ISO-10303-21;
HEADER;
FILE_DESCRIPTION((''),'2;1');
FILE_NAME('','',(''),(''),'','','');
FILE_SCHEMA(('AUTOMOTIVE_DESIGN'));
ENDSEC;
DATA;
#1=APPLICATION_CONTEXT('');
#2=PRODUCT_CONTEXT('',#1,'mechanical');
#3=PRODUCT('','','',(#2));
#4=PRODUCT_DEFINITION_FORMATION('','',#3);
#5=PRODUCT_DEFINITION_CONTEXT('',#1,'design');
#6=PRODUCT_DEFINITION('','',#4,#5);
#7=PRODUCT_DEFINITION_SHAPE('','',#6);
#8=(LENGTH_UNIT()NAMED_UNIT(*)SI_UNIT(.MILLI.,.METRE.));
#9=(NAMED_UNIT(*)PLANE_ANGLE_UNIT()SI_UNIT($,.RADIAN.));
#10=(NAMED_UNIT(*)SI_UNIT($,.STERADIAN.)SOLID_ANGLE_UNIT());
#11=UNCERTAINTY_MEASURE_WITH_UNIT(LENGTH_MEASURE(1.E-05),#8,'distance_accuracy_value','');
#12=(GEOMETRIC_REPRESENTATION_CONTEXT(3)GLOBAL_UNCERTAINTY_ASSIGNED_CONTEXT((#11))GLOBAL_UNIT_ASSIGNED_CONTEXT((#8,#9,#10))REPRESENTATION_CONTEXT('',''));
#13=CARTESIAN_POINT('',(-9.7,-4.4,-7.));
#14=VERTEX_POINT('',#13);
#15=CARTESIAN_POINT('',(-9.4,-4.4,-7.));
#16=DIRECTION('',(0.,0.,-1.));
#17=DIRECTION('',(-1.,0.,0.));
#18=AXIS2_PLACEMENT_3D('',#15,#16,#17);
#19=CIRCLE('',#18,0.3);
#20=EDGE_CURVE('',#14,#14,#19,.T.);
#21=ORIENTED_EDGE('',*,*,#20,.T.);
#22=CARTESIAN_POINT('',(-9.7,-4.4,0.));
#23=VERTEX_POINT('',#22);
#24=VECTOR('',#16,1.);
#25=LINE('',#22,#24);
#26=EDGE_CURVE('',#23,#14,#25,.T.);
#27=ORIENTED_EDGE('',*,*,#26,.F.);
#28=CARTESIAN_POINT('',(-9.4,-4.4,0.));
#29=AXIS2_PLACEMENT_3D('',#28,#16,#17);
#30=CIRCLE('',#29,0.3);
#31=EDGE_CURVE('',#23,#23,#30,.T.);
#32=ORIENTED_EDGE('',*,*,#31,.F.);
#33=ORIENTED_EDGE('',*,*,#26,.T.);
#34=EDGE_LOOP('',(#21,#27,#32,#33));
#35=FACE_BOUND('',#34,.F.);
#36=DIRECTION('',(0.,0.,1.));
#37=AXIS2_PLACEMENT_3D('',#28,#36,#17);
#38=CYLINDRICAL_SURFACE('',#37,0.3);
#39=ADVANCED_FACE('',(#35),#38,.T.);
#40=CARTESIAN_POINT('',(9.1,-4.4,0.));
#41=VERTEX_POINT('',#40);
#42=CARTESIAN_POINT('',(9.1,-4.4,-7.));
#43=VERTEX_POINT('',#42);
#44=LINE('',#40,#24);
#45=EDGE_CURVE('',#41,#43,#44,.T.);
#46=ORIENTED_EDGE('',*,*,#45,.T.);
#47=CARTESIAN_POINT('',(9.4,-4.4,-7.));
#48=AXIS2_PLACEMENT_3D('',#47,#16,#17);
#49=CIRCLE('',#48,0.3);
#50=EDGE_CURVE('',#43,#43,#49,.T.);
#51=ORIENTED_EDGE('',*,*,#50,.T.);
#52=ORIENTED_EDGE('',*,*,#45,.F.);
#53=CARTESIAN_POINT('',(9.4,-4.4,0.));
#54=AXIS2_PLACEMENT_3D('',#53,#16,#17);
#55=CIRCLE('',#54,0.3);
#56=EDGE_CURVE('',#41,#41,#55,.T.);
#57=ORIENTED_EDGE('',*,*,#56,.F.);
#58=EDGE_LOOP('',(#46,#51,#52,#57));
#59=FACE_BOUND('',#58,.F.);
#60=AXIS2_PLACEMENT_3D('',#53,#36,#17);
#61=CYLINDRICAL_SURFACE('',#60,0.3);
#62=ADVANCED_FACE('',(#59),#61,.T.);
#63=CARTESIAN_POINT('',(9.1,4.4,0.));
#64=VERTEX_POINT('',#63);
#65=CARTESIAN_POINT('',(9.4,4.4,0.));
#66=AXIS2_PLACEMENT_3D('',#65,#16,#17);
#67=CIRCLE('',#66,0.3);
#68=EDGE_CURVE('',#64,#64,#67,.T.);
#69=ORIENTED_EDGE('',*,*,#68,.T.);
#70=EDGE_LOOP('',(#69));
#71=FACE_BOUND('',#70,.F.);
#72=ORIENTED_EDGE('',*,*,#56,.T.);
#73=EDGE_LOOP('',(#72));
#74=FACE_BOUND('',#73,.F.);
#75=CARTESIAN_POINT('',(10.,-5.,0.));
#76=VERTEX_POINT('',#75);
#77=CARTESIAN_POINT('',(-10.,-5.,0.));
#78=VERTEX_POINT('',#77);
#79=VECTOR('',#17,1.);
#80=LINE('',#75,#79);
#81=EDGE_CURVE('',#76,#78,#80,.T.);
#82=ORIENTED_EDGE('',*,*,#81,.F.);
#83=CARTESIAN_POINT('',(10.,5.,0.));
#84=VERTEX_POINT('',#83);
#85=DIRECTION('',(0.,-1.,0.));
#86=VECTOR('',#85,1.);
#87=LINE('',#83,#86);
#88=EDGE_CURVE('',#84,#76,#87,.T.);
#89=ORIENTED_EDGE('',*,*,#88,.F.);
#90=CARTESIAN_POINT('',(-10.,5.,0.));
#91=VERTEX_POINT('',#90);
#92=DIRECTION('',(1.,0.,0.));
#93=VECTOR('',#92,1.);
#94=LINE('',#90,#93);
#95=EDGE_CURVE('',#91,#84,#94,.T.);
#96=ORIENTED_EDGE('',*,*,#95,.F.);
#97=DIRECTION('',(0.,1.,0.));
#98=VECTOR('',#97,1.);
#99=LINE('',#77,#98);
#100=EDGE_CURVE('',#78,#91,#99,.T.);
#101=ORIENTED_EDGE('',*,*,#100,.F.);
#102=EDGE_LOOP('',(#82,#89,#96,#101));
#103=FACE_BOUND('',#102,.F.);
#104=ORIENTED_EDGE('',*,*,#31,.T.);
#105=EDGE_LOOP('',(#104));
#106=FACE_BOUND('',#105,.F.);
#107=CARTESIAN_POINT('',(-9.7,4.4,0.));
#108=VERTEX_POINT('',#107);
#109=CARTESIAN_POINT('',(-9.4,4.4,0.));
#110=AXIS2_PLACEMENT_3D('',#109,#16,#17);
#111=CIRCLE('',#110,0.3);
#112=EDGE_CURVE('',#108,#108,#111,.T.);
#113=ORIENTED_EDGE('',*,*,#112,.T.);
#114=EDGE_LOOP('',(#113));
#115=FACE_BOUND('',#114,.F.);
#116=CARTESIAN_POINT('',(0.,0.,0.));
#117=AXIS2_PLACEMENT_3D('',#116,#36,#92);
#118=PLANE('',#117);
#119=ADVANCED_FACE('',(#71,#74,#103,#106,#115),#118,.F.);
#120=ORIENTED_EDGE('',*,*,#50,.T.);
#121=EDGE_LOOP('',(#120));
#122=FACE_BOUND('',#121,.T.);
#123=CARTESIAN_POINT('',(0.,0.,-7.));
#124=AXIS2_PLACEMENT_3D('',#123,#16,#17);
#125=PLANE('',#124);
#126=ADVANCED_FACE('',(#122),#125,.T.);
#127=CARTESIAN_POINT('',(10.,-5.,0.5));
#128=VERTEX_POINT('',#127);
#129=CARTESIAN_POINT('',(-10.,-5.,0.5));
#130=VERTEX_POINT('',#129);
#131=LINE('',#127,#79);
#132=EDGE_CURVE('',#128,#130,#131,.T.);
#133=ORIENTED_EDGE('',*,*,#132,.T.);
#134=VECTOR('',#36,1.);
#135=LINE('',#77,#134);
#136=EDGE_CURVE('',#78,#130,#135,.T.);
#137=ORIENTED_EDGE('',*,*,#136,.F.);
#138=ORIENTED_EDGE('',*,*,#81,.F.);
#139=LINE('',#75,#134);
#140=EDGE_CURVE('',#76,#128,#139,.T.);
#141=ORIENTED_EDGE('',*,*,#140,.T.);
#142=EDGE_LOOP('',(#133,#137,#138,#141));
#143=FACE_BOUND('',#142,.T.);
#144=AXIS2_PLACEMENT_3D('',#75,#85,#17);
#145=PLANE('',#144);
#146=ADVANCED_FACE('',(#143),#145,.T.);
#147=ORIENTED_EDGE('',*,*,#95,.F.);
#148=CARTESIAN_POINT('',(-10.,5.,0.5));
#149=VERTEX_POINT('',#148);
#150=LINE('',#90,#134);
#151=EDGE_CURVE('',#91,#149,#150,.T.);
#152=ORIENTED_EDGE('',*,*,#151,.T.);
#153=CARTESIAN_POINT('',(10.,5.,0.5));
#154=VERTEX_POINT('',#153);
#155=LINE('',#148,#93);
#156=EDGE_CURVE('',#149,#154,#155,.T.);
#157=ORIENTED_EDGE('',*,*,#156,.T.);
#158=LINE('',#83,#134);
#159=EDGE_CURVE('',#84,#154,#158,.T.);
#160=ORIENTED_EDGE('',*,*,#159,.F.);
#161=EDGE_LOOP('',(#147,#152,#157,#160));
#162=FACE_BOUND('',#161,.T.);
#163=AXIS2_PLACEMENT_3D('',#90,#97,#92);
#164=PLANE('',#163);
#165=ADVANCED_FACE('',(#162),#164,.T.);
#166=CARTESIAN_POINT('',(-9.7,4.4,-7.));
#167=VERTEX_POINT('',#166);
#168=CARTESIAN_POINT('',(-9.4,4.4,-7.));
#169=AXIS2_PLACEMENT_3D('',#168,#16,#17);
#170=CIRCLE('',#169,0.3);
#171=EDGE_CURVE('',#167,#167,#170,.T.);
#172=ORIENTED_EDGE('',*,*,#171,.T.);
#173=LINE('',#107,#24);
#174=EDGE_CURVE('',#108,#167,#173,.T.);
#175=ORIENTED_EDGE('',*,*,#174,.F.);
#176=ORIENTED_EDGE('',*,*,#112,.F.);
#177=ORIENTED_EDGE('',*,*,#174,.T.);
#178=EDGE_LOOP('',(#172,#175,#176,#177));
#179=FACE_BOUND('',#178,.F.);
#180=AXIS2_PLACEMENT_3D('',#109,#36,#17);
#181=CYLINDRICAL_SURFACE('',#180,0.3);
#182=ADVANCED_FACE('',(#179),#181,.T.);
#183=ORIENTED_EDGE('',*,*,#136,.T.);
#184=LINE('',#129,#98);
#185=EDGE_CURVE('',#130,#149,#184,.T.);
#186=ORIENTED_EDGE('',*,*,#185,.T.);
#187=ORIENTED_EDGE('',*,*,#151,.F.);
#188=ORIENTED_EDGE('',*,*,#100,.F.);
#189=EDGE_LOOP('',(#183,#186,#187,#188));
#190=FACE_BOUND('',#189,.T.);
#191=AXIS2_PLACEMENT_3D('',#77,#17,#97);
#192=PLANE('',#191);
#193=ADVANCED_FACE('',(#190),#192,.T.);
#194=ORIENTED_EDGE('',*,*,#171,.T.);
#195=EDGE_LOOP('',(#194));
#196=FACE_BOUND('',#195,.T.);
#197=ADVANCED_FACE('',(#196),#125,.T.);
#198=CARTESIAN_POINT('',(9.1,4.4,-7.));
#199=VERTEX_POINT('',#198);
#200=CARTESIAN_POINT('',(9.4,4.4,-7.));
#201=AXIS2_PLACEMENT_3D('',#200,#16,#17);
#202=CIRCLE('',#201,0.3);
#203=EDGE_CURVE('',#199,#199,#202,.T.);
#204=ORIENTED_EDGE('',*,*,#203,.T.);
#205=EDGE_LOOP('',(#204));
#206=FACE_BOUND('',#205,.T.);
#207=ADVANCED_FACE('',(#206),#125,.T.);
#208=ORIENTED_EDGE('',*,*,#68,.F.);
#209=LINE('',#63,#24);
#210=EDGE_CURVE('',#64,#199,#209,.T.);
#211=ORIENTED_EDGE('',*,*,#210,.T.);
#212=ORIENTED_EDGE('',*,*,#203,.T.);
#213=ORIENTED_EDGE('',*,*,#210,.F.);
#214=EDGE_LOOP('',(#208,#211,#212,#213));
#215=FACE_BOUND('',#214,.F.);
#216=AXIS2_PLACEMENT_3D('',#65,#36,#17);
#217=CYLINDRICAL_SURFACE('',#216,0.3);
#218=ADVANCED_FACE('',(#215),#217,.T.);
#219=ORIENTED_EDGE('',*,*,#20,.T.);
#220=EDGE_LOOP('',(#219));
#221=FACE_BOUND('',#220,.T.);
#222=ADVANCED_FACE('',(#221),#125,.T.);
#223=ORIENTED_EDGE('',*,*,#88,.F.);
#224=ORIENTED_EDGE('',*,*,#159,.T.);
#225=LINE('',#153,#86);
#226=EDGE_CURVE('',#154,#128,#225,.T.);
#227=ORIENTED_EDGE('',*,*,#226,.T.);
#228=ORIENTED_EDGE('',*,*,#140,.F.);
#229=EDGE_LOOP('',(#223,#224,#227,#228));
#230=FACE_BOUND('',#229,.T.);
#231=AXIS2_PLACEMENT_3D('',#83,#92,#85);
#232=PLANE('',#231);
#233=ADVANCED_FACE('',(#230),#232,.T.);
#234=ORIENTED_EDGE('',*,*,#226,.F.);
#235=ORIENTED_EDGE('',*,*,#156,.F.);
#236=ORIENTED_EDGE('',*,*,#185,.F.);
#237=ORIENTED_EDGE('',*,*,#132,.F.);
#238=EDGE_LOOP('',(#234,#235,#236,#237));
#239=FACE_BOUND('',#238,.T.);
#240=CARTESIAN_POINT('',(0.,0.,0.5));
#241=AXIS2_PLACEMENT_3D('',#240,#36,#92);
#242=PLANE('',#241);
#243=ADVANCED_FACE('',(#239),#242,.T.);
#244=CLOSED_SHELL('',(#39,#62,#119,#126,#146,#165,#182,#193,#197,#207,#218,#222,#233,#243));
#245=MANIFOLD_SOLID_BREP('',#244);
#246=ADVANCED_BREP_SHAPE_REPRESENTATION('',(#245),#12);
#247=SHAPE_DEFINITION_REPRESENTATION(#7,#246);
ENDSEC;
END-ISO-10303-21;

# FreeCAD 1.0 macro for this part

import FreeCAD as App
import Part
import Sketcher

doc = App.newDocument("Part")
params = doc.addObject("Spreadsheet::Sheet", "Params")
for row, (alias, value) in enumerate([
    ("sketch1_width", "20 mm"),
    ("sketch1_height", "10 mm"),
    ("pad1_length", "0.5 mm"),
    ("sketch2_diameter", "0.6 mm"),
    ("pad2_length", "7 mm"),
], start=1):
    params.set(f"A{row}", alias)
    params.set(f"B{row}", "=" + value)
    params.setAlias(f"B{row}", alias)

body = doc.addObject("PartDesign::Body", "Body")

# Sketch on XY plane
sketch1 = body.newObject("Sketcher::SketchObject", "Sketch")
sketch1.AttachmentSupport = (doc.getObject("XY_Plane"), [""])
sketch1.MapMode = "FlatFace"
sketch1.addGeometry([
    Part.LineSegment(App.Vector(10, 5, 0), App.Vector(-10, 5, 0)),
    Part.LineSegment(App.Vector(-10, 5, 0), App.Vector(-10, -5, 0)),
    Part.LineSegment(App.Vector(-10, -5, 0), App.Vector(10, -5, 0)),
    Part.LineSegment(App.Vector(10, -5, 0), App.Vector(10, 5, 0)),
], False)
sketch1.addConstraint([
    Sketcher.Constraint("Coincident", 0, 2, 1, 1),
    Sketcher.Constraint("Coincident", 1, 2, 2, 1),
    Sketcher.Constraint("Coincident", 2, 2, 3, 1),
    Sketcher.Constraint("Coincident", 3, 2, 0, 1),
    Sketcher.Constraint("Horizontal", 0),
    Sketcher.Constraint("Vertical", 1),
    Sketcher.Constraint("Horizontal", 2),
    Sketcher.Constraint("Vertical", 3),
    Sketcher.Constraint("Symmetric", 0, 2, 2, 2, -1, 1),
    Sketcher.Constraint("DistanceX", 0, 2, 0, 1, 20.0),
    Sketcher.Constraint("DistanceY", 1, 2, 1, 1, 10.0),
])
sketch1.setExpression("Constraints[9]", "Params.sketch1_width")
sketch1.setExpression("Constraints[10]", "Params.sketch1_height")
pad1 = body.newObject("PartDesign::Pad", "Pad")
pad1.Profile = sketch1
pad1.setExpression("Length", "Params.pad1_length")

# Sketch on XY plane
sketch2 = body.newObject("Sketcher::SketchObject", "Sketch001")
sketch2.AttachmentSupport = (doc.getObject("XY_Plane"), [""])
sketch2.MapMode = "FlatFace"
sketch2.addGeometry([
    Part.Circle(App.Vector(-9.4, 4.4, 0), App.Vector(0, 0, 1), 0.3),
    Part.Circle(App.Vector(9.4, 4.4, 0), App.Vector(0, 0, 1), 0.3),
    Part.Circle(App.Vector(9.4, -4.4, 0), App.Vector(0, 0, 1), 0.3),
    Part.Circle(App.Vector(-9.4, -4.4, 0), App.Vector(0, 0, 1), 0.3),
], False)
sketch2.addConstraint([
    Sketcher.Constraint("Equal", 0, 1),
    Sketcher.Constraint("Equal", 1, 2),
    Sketcher.Constraint("Equal", 2, 3),
    Sketcher.Constraint("Symmetric", 0, 3, 2, 3, -1, 1),
    Sketcher.Constraint("Symmetric", 1, 3, 3, 3, -1, 1),
    Sketcher.Constraint("Symmetric", 0, 3, 1, 3, -2),
    Sketcher.Constraint("Diameter", 0, 0.6),
    Sketcher.Constraint("DistanceX", 0, 3, -1, 1, 9.4),
    Sketcher.Constraint("DistanceY", -1, 1, 0, 3, 4.4),
])
sketch2.setExpression("Constraints[6]", "Params.sketch2_diameter")
pad2 = body.newObject("PartDesign::Pad", "Pad001")
pad2.Profile = sketch2
pad2.setExpression("Length", "Params.pad2_length")
pad2.Reversed = True

doc.recompute()
